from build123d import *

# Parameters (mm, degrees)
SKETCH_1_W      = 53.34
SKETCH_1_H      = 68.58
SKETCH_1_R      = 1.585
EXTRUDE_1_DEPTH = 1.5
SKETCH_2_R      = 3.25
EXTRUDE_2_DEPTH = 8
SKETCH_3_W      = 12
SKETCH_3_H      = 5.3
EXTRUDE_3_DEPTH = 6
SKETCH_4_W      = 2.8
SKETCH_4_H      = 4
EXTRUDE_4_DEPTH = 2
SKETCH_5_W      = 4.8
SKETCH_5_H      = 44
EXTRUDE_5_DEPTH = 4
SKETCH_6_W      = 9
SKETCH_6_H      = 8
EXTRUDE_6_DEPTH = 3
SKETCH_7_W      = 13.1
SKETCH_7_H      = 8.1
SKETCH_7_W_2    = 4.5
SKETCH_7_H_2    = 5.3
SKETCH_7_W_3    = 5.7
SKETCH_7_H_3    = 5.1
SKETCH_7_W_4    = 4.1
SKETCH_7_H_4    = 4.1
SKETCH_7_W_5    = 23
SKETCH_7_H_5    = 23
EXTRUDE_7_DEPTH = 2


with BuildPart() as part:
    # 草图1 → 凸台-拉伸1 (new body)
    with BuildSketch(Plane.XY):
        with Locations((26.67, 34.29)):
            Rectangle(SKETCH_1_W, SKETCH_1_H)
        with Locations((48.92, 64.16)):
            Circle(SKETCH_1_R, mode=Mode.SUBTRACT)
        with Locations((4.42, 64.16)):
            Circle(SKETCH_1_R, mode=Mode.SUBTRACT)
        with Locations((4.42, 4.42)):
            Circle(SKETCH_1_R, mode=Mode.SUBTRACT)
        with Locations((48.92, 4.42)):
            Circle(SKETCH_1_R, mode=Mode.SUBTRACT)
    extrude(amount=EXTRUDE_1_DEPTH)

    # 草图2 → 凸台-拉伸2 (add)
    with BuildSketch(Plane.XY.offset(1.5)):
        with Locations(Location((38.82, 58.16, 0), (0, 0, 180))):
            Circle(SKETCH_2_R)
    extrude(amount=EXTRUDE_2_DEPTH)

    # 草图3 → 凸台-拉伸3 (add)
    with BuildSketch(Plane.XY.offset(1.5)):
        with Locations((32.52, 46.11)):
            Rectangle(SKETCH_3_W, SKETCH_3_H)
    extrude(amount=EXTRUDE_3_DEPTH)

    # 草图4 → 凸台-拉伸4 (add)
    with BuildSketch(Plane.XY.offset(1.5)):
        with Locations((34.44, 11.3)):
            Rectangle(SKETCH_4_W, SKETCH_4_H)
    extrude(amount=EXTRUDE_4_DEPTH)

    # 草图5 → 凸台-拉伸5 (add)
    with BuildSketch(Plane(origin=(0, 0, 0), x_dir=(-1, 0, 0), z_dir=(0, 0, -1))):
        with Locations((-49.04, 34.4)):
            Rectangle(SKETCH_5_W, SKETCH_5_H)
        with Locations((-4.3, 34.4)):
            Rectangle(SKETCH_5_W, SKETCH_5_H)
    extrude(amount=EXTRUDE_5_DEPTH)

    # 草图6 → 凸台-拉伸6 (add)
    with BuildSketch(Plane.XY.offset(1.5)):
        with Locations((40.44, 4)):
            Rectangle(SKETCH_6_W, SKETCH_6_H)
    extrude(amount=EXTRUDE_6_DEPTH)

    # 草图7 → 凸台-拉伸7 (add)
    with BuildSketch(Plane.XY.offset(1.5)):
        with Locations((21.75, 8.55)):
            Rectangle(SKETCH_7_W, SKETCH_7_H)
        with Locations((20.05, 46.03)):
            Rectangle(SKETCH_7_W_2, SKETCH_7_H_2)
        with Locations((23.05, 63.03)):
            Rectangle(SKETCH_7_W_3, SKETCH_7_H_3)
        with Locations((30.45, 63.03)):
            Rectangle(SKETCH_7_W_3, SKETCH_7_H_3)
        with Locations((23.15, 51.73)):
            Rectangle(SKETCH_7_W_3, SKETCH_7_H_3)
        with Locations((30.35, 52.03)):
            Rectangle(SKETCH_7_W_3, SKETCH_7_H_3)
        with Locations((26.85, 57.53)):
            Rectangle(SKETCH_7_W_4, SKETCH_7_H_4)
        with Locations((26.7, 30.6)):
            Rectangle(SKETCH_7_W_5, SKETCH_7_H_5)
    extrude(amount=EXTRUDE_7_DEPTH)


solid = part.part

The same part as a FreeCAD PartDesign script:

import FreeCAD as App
import Part
import Sketcher


def add_polygon(sketch, points):
    """Adds a closed chain of lines whose ends are joined by coincident constraints."""
    first, n = sketch.GeometryCount, len(points)
    for a, b in zip(points, points[1:] + points[:1]):
        sketch.addGeometry(Part.LineSegment(App.Vector(*a, 0), App.Vector(*b, 0)), False)
    for i in range(n):
        sketch.addConstraint(Sketcher.Constraint("Coincident", first + i, 2, first + (i + 1) % n, 1))

doc = App.newDocument("Part")
params = doc.addObject("Spreadsheet::Sheet", "Params")
for row, (alias, value) in enumerate([
    ("sketch1_diameter", "3.17 mm"),
    ("sketch1_width", "53.34 mm"),
    ("sketch1_height", "68.58 mm"),
    ("pad1_length", "1.5 mm"),
    ("sketch2_diameter", "6.5 mm"),
    ("pad2_length", "8 mm"),
    ("sketch3_width", "12 mm"),
    ("sketch3_height", "5.3 mm"),
    ("pad3_length", "6 mm"),
    ("sketch4_height", "4 mm"),
    ("sketch4_width", "2.8 mm"),
    ("pad4_length", "2 mm"),
    ("sketch5_height", "44 mm"),
    ("sketch5_width", "4.8 mm"),
    ("pad5_length", "4 mm"),
    ("sketch6_width", "9 mm"),
    ("sketch6_height", "8 mm"),
    ("pad6_length", "3 mm"),
    ("sketch7_width", "23 mm"),
    ("sketch7_width2", "13.1 mm"),
    ("sketch7_width3", "4.5 mm"),
    ("sketch7_width4", "5.7 mm"),
    ("sketch7_width5", "4.1 mm"),
    ("pad7_length", "2 mm"),
], start=1):
    params.set(f"A{row}", alias)
    params.set(f"B{row}", "=" + value)
    params.setAlias(f"B{row}", alias)

body = doc.addObject("PartDesign::Body", "Body")

# Sketch on XY plane
sketch1 = body.newObject("Sketcher::SketchObject", "Sketch")
sketch1.AttachmentSupport = (doc.getObject("XY_Plane"), [""])
sketch1.MapMode = "FlatFace"
add_polygon(sketch1, [(0, 68.58), (0, 0), (53.34, 0), (53.34, 68.58)])  # lines 0-3
sketch1.addGeometry(Part.Circle(App.Vector(4.42, 4.42, 0), App.Vector(0, 0, 1), 1.585), False)  # 4
sketch1.addGeometry(Part.Circle(App.Vector(48.92, 4.42, 0), App.Vector(0, 0, 1), 1.585), False)  # 5
sketch1.addGeometry(Part.Circle(App.Vector(4.42, 64.16, 0), App.Vector(0, 0, 1), 1.585), False)  # 6
sketch1.addGeometry(Part.Circle(App.Vector(48.92, 64.16, 0), App.Vector(0, 0, 1), 1.585), False)  # 7
sketch1.addConstraint(Sketcher.Constraint("Vertical", 0))
sketch1.addConstraint(Sketcher.Constraint("Horizontal", 1))
sketch1.addConstraint(Sketcher.Constraint("Vertical", 2))
sketch1.addConstraint(Sketcher.Constraint("Horizontal", 3))
sketch1.addConstraint(Sketcher.Constraint("Coincident", 0, 2, -1, 1))
sketch1.addConstraint(Sketcher.Constraint("Equal", 4, 5))
sketch1.addConstraint(Sketcher.Constraint("Equal", 5, 6))
sketch1.addConstraint(Sketcher.Constraint("Equal", 6, 7))
sketch1.addConstraint(Sketcher.Constraint("Horizontal", 4, 3, 5, 3))
sketch1.addConstraint(Sketcher.Constraint("Horizontal", 6, 3, 7, 3))
sketch1.addConstraint(Sketcher.Constraint("Vertical", 4, 3, 6, 3))
sketch1.addConstraint(Sketcher.Constraint("Vertical", 5, 3, 7, 3))
sketch1.addConstraint(Sketcher.Constraint("Diameter", 4, 3.17))
sketch1.addConstraint(Sketcher.Constraint("DistanceX", 1, 1, 1, 2, 53.34))
sketch1.addConstraint(Sketcher.Constraint("DistanceY", 0, 2, 0, 1, 68.58))
sketch1.addConstraint(Sketcher.Constraint("DistanceX", 4, 3, 5, 3, 44.5))
sketch1.addConstraint(Sketcher.Constraint("DistanceX", -1, 1, 4, 3, 4.42))
sketch1.addConstraint(Sketcher.Constraint("DistanceY", -1, 1, 4, 3, 4.42))
sketch1.addConstraint(Sketcher.Constraint("DistanceY", -1, 1, 6, 3, 64.16))
sketch1.setExpression("Constraints[16]", "Params.sketch1_diameter")
sketch1.setExpression("Constraints[17]", "Params.sketch1_width")
sketch1.setExpression("Constraints[18]", "Params.sketch1_height")
pad1 = body.newObject("PartDesign::Pad", "Pad")
pad1.Profile = sketch1
pad1.setExpression("Length", "Params.pad1_length")

# Sketch on XY plane
sketch2 = body.newObject("Sketcher::SketchObject", "Sketch001")
sketch2.AttachmentSupport = (doc.getObject("XY_Plane"), [""])
sketch2.MapMode = "FlatFace"
sketch2.AttachmentOffset = App.Placement(App.Vector(0, 0, 1.5), App.Rotation())
sketch2.addGeometry(Part.Circle(App.Vector(38.82, 58.16, 0), App.Vector(0, 0, 1), 3.25), False)
sketch2.addConstraint(Sketcher.Constraint("Diameter", 0, 6.5))
sketch2.addConstraint(Sketcher.Constraint("DistanceX", -1, 1, 0, 3, 38.82))
sketch2.addConstraint(Sketcher.Constraint("DistanceY", -1, 1, 0, 3, 58.16))
sketch2.setExpression("Constraints[0]", "Params.sketch2_diameter")
pad2 = body.newObject("PartDesign::Pad", "Pad001")
pad2.Profile = sketch2
pad2.setExpression("Length", "Params.pad2_length")

# Sketch on XY plane
sketch3 = body.newObject("Sketcher::SketchObject", "Sketch002")
sketch3.AttachmentSupport = (doc.getObject("XY_Plane"), [""])
sketch3.MapMode = "FlatFace"
sketch3.AttachmentOffset = App.Placement(App.Vector(0, 0, 1.5), App.Rotation())
add_polygon(sketch3, [(26.52, 48.76), (26.52, 43.46), (38.52, 43.46), (38.52, 48.76)])  # lines 0-3
sketch3.addConstraint(Sketcher.Constraint("Vertical", 0))
sketch3.addConstraint(Sketcher.Constraint("Horizontal", 1))
sketch3.addConstraint(Sketcher.Constraint("Vertical", 2))
sketch3.addConstraint(Sketcher.Constraint("Horizontal", 3))
sketch3.addConstraint(Sketcher.Constraint("DistanceX", 1, 1, 1, 2, 12.0))
sketch3.addConstraint(Sketcher.Constraint("DistanceY", 0, 2, 0, 1, 5.3))
sketch3.addConstraint(Sketcher.Constraint("DistanceX", -1, 1, 0, 2, 26.52))
sketch3.addConstraint(Sketcher.Constraint("DistanceY", -1, 1, 0, 2, 43.46))
sketch3.setExpression("Constraints[8]", "Params.sketch3_width")
sketch3.setExpression("Constraints[9]", "Params.sketch3_height")
pad3 = body.newObject("PartDesign::Pad", "Pad002")
pad3.Profile = sketch3
pad3.setExpression("Length", "Params.pad3_length")

# Sketch on XY plane
sketch4 = body.newObject("Sketcher::SketchObject", "Sketch003")
sketch4.AttachmentSupport = (doc.getObject("XY_Plane"), [""])
sketch4.MapMode = "FlatFace"
sketch4.AttachmentOffset = App.Placement(App.Vector(0, 0, 1.5), App.Rotation())
add_polygon(sketch4, [(33.04, 13.3), (33.04, 9.3), (35.84, 9.3), (35.84, 13.3)])  # lines 0-3
sketch4.addConstraint(Sketcher.Constraint("Vertical", 0))
sketch4.addConstraint(Sketcher.Constraint("Horizontal", 1))
sketch4.addConstraint(Sketcher.Constraint("Vertical", 2))
sketch4.addConstraint(Sketcher.Constraint("Horizontal", 3))
sketch4.addConstraint(Sketcher.Constraint("DistanceY", 0, 2, 0, 1, 4.0))
sketch4.addConstraint(Sketcher.Constraint("DistanceX", 1, 1, 1, 2, 2.8))
sketch4.addConstraint(Sketcher.Constraint("DistanceY", -1, 1, 0, 2, 9.3))
sketch4.addConstraint(Sketcher.Constraint("DistanceX", -1, 1, 0, 2, 33.04))
sketch4.setExpression("Constraints[8]", "Params.sketch4_height")
sketch4.setExpression("Constraints[9]", "Params.sketch4_width")
pad4 = body.newObject("PartDesign::Pad", "Pad003")
pad4.Profile = sketch4
pad4.setExpression("Length", "Params.pad4_length")

# Sketch on XY plane
sketch5 = body.newObject("Sketcher::SketchObject", "Sketch004")
sketch5.AttachmentSupport = (doc.getObject("XY_Plane"), [""])
sketch5.MapMode = "FlatFace"
add_polygon(sketch5, [(51.44, 56.4), (51.44, 12.4), (46.64, 12.4), (46.64, 56.4)])  # lines 0-3
add_polygon(sketch5, [(6.7, 56.4), (6.7, 12.4), (1.9, 12.4), (1.9, 56.4)])  # lines 4-7
sketch5.addConstraint(Sketcher.Constraint("Vertical", 0))
sketch5.addConstraint(Sketcher.Constraint("Horizontal", 1))
sketch5.addConstraint(Sketcher.Constraint("Vertical", 2))
sketch5.addConstraint(Sketcher.Constraint("Horizontal", 3))
sketch5.addConstraint(Sketcher.Constraint("Vertical", 4))
sketch5.addConstraint(Sketcher.Constraint("Horizontal", 5))
sketch5.addConstraint(Sketcher.Constraint("Vertical", 6))
sketch5.addConstraint(Sketcher.Constraint("Horizontal", 7))
sketch5.addConstraint(Sketcher.Constraint("Horizontal", 1, 2, 4, 2))
sketch5.addConstraint(Sketcher.Constraint("Horizontal", 3, 2, 6, 2))
sketch5.addConstraint(Sketcher.Constraint("Equal", 3, 5))
sketch5.addConstraint(Sketcher.Constraint("DistanceY", 0, 2, 0, 1, 44.0))
sketch5.addConstraint(Sketcher.Constraint("DistanceX", 1, 2, 1, 1, 4.8))
sketch5.addConstraint(Sketcher.Constraint("DistanceY", -1, 1, 0, 2, 12.4))
sketch5.addConstraint(Sketcher.Constraint("DistanceX", -1, 1, 4, 2, 6.7))
sketch5.addConstraint(Sketcher.Constraint("DistanceX", -1, 1, 0, 2, 51.44))
sketch5.setExpression("Constraints[19]", "Params.sketch5_height")
sketch5.setExpression("Constraints[20]", "Params.sketch5_width")
pad5 = body.newObject("PartDesign::Pad", "Pad004")
pad5.Profile = sketch5
pad5.setExpression("Length", "Params.pad5_length")
pad5.Reversed = True

# Sketch on XY plane
sketch6 = body.newObject("Sketcher::SketchObject", "Sketch005")
sketch6.AttachmentSupport = (doc.getObject("XY_Plane"), [""])
sketch6.MapMode = "FlatFace"
sketch6.AttachmentOffset = App.Placement(App.Vector(0, 0, 1.5), App.Rotation())
add_polygon(sketch6, [(35.94, 8), (35.94, 0), (44.94, 0), (44.94, 8)])  # lines 0-3
sketch6.addConstraint(Sketcher.Constraint("Vertical", 0))
sketch6.addConstraint(Sketcher.Constraint("Horizontal", 1))
sketch6.addConstraint(Sketcher.Constraint("Vertical", 2))
sketch6.addConstraint(Sketcher.Constraint("Horizontal", 3))
sketch6.addConstraint(Sketcher.Constraint("PointOnObject", 0, 2, -1))
sketch6.addConstraint(Sketcher.Constraint("DistanceX", 1, 1, 1, 2, 9.0))
sketch6.addConstraint(Sketcher.Constraint("DistanceY", 0, 2, 0, 1, 8.0))
sketch6.addConstraint(Sketcher.Constraint("DistanceX", -1, 1, 0, 2, 35.94))
sketch6.setExpression("Constraints[9]", "Params.sketch6_width")
sketch6.setExpression("Constraints[10]", "Params.sketch6_height")
pad6 = body.newObject("PartDesign::Pad", "Pad005")
pad6.Profile = sketch6
pad6.setExpression("Length", "Params.pad6_length")

# Sketch on XY plane
sketch7 = body.newObject("Sketcher::SketchObject", "Sketch006")
sketch7.AttachmentSupport = (doc.getObject("XY_Plane"), [""])
sketch7.MapMode = "FlatFace"
sketch7.AttachmentOffset = App.Placement(App.Vector(0, 0, 1.5), App.Rotation())
add_polygon(sketch7, [(15.2, 12.6), (15.2, 4.5), (28.3, 4.5), (28.3, 12.6)])  # lines 0-3
add_polygon(sketch7, [(17.8, 48.68), (17.8, 43.38), (22.3, 43.38), (22.3, 48.68)])  # lines 4-7
add_polygon(sketch7, [(20.2, 65.58), (20.2, 60.48), (25.9, 60.48), (25.9, 65.58)])  # lines 8-11
add_polygon(sketch7, [(27.6, 65.58), (27.6, 60.48), (33.3, 60.48), (33.3, 65.58)])  # lines 12-15
add_polygon(sketch7, [(20.3, 54.28), (20.3, 49.18), (26, 49.18), (26, 54.28)])  # lines 16-19
add_polygon(sketch7, [(27.5, 54.58), (27.5, 49.48), (33.2, 49.48), (33.2, 54.58)])  # lines 20-23
add_polygon(sketch7, [(24.8, 59.58), (24.8, 55.48), (28.9, 55.48), (28.9, 59.58)])  # lines 24-27
add_polygon(sketch7, [(15.2, 42.1), (15.2, 19.1), (38.2, 19.1), (38.2, 42.1)])  # lines 28-31
sketch7.addConstraint(Sketcher.Constraint("Vertical", 0))
sketch7.addConstraint(Sketcher.Constraint("Horizontal", 1))
sketch7.addConstraint(Sketcher.Constraint("Vertical", 2))
sketch7.addConstraint(Sketcher.Constraint("Horizontal", 3))
sketch7.addConstraint(Sketcher.Constraint("Vertical", 4))
sketch7.addConstraint(Sketcher.Constraint("Horizontal", 5))
sketch7.addConstraint(Sketcher.Constraint("Vertical", 6))
sketch7.addConstraint(Sketcher.Constraint("Horizontal", 7))
sketch7.addConstraint(Sketcher.Constraint("Vertical", 8))
sketch7.addConstraint(Sketcher.Constraint("Horizontal", 9))
sketch7.addConstraint(Sketcher.Constraint("Vertical", 10))
sketch7.addConstraint(Sketcher.Constraint("Horizontal", 11))
sketch7.addConstraint(Sketcher.Constraint("Vertical", 12))
sketch7.addConstraint(Sketcher.Constraint("Horizontal", 13))
sketch7.addConstraint(Sketcher.Constraint("Vertical", 14))
sketch7.addConstraint(Sketcher.Constraint("Horizontal", 15))
sketch7.addConstraint(Sketcher.Constraint("Vertical", 16))
sketch7.addConstraint(Sketcher.Constraint("Horizontal", 17))
sketch7.addConstraint(Sketcher.Constraint("Vertical", 18))
sketch7.addConstraint(Sketcher.Constraint("Horizontal", 19))
sketch7.addConstraint(Sketcher.Constraint("Vertical", 20))
sketch7.addConstraint(Sketcher.Constraint("Horizontal", 21))
sketch7.addConstraint(Sketcher.Constraint("Vertical", 22))
sketch7.addConstraint(Sketcher.Constraint("Horizontal", 23))
sketch7.addConstraint(Sketcher.Constraint("Vertical", 24))
sketch7.addConstraint(Sketcher.Constraint("Horizontal", 25))
sketch7.addConstraint(Sketcher.Constraint("Vertical", 26))
sketch7.addConstraint(Sketcher.Constraint("Horizontal", 27))
sketch7.addConstraint(Sketcher.Constraint("Vertical", 28))
sketch7.addConstraint(Sketcher.Constraint("Horizontal", 29))
sketch7.addConstraint(Sketcher.Constraint("Vertical", 30))
sketch7.addConstraint(Sketcher.Constraint("Horizontal", 31))
sketch7.addConstraint(Sketcher.Constraint("Horizontal", 9, 2, 12, 2))
sketch7.addConstraint(Sketcher.Constraint("Horizontal", 11, 2, 14, 2))
sketch7.addConstraint(Sketcher.Constraint("Vertical", 3, 2, 28, 2))
sketch7.addConstraint(Sketcher.Constraint("Equal", 11, 13))
sketch7.addConstraint(Sketcher.Constraint("Equal", 15, 17))
sketch7.addConstraint(Sketcher.Constraint("Equal", 19, 21))
sketch7.addConstraint(Sketcher.Constraint("Equal", 14, 16))
sketch7.addConstraint(Sketcher.Constraint("Equal", 18, 20))
sketch7.addConstraint(Sketcher.Constraint("Equal", 27, 24))
sketch7.addConstraint(Sketcher.Constraint("Equal", 31, 28))
sketch7.addConstraint(Sketcher.Constraint("DistanceX", 29, 1, 29, 2, 23.0))
sketch7.addConstraint(Sketcher.Constraint("DistanceX", 1, 1, 1, 2, 13.1))
sketch7.addConstraint(Sketcher.Constraint("DistanceX", 5, 1, 5, 2, 4.5))
sketch7.addConstraint(Sketcher.Constraint("DistanceX", 9, 1, 9, 2, 5.7))
sketch7.addConstraint(Sketcher.Constraint("DistanceX", 25, 1, 25, 2, 4.1))
sketch7.addConstraint(Sketcher.Constraint("DistanceY", 0, 2, 0, 1, 8.1))
sketch7.addConstraint(Sketcher.Constraint("DistanceY", 4, 2, 4, 1, 5.3))
sketch7.addConstraint(Sketcher.Constraint("DistanceY", 8, 2, 8, 1, 5.1))
sketch7.addConstraint(Sketcher.Constraint("DistanceX", -1, 1, 17, 2, 26.0))
sketch7.addConstraint(Sketcher.Constraint("DistanceX", 5, 2, 2, 2, 6.0))
sketch7.addConstraint(Sketcher.Constraint("DistanceX", 3, 2, 8, 2, 5.0))
sketch7.addConstraint(Sketcher.Constraint("DistanceX", 16, 2, 6, 2, 2.0))
sketch7.addConstraint(Sketcher.Constraint("DistanceY", 21, 2, 13, 2, 11.0))
sketch7.addConstraint(Sketcher.Constraint("DistanceY", 24, 2, 9, 2, 5.0))
sketch7.addConstraint(Sketcher.Constraint("DistanceX", 9, 2, 26, 2, 3.0))
sketch7.addConstraint(Sketcher.Constraint("DistanceX", 21, 2, 30, 2, 5.0))
sketch7.addConstraint(Sketcher.Constraint("DistanceY", -1, 1, 0, 2, 4.5))
sketch7.addConstraint(Sketcher.Constraint("DistanceX", -1, 1, 12, 2, 27.6))
sketch7.addConstraint(Sketcher.Constraint("DistanceY", -1, 1, 28, 2, 19.1))
sketch7.addConstraint(Sketcher.Constraint("DistanceY", 6, 2, 8, 2, 11.8))
sketch7.addConstraint(Sketcher.Constraint("DistanceY", 6, 2, 16, 2, 0.5))
sketch7.addConstraint(Sketcher.Constraint("DistanceY", -1, 1, 4, 2, 43.38))
sketch7.setExpression("Constraints[74]", "Params.sketch7_width")
sketch7.setExpression("Constraints[75]", "Params.sketch7_width2")
sketch7.setExpression("Constraints[76]", "Params.sketch7_width3")
sketch7.setExpression("Constraints[77]", "Params.sketch7_width4")
sketch7.setExpression("Constraints[78]", "Params.sketch7_width5")
pad7 = body.newObject("PartDesign::Pad", "Pad006")
pad7.Profile = sketch7
pad7.setExpression("Length", "Params.pad7_length")

doc.recompute()
